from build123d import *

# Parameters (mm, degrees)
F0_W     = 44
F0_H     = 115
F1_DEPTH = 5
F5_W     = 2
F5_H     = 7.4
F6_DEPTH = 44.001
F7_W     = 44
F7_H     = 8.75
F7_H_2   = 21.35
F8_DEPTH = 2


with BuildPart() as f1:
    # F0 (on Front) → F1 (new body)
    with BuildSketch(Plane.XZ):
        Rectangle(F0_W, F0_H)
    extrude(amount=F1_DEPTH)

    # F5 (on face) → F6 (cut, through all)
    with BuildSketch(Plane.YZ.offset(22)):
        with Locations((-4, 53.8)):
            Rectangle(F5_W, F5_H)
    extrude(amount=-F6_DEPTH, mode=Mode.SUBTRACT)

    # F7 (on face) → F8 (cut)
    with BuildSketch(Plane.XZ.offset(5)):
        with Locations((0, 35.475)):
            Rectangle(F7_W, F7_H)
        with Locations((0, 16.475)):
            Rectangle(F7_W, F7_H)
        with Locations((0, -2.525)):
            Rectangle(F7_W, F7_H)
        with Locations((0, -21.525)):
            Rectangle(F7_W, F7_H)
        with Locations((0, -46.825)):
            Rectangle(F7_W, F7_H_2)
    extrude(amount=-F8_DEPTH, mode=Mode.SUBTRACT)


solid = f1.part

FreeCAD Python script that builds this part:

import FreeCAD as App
import Part
import Sketcher
Q = App.Units.Quantity

doc = App.newDocument("Part")
body = doc.addObject("PartDesign::Body", "Body")

sketch1 = doc.addObject("Sketcher::SketchObject", "Sketch")
body.addObject(sketch1)
sketch1.AttachmentSupport = (doc.XZ_Plane, [""])
sketch1.MapMode = "FlatFace"
sketch1.addGeometry([
    Part.LineSegment(App.Vector(-22, 58, 0), App.Vector(-22, -58, 0)),
    Part.LineSegment(App.Vector(-22, -58, 0), App.Vector(22, -58, 0)),
    Part.LineSegment(App.Vector(22, -58, 0), App.Vector(22, 58, 0)),
    Part.LineSegment(App.Vector(22, 58, 0), App.Vector(-22, 58, 0)),
], False)
sketch1.addConstraint([
    Sketcher.Constraint("Coincident", 0, 2, 1, 1),
    Sketcher.Constraint("Coincident", 1, 2, 2, 1),
    Sketcher.Constraint("Coincident", 2, 2, 3, 1),
    Sketcher.Constraint("Coincident", 3, 2, 0, 1),
    Sketcher.Constraint("Vertical", 0),
    Sketcher.Constraint("Horizontal", 1),
    Sketcher.Constraint("Vertical", 2),
    Sketcher.Constraint("Horizontal", 3),
    Sketcher.Constraint("Symmetric", 0, 2, 2, 2, -1, 1),
    Sketcher.Constraint("DistanceX", 1, 1, 1, 2, Q("44 mm")),
    Sketcher.Constraint("DistanceY", 0, 2, 0, 1, Q("115 mm")),
])
pad1 = doc.addObject("PartDesign::Pad", "Pad")
body.addObject(pad1)
pad1.Profile = sketch1
pad1.Length = 5

sketch2 = doc.addObject("Sketcher::SketchObject", "Sketch001")
body.addObject(sketch2)
sketch2.AttachmentSupport = (doc.YZ_Plane, [""])
sketch2.MapMode = "FlatFace"
sketch2.AttachmentOffset = App.Placement(App.Vector(0, 0, 22), App.Rotation())
sketch2.addGeometry([
    Part.LineSegment(App.Vector(-5, 57.5, 0), App.Vector(-5, 50.1, 0)),
    Part.LineSegment(App.Vector(-5, 50.1, 0), App.Vector(-3, 50.1, 0)),
    Part.LineSegment(App.Vector(-3, 50.1, 0), App.Vector(-3, 57.5, 0)),
    Part.LineSegment(App.Vector(-3, 57.5, 0), App.Vector(-5, 57.5, 0)),
], False)
sketch2.addConstraint([
    Sketcher.Constraint("Coincident", 0, 2, 1, 1),
    Sketcher.Constraint("Coincident", 1, 2, 2, 1),
    Sketcher.Constraint("Coincident", 2, 2, 3, 1),
    Sketcher.Constraint("Coincident", 3, 2, 0, 1),
    Sketcher.Constraint("Vertical", 0),
    Sketcher.Constraint("Horizontal", 1),
    Sketcher.Constraint("Vertical", 2),
    Sketcher.Constraint("Horizontal", 3),
    Sketcher.Constraint("DistanceX", 1, 1, 1, 2, Q("2 mm")),
    Sketcher.Constraint("DistanceY", 0, 2, 0, 1, Q("7.4 mm")),
    Sketcher.Constraint("DistanceX", 0, 2, -1, 1, Q("5 mm")),
    Sketcher.Constraint("DistanceY", -1, 1, 0, 2, Q("50.1 mm")),
])
pocket1 = doc.addObject("PartDesign::Pocket", "Pocket")
body.addObject(pocket1)
pocket1.Profile = sketch2
pocket1.Type = "ThroughAll"

sketch3 = doc.addObject("Sketcher::SketchObject", "Sketch002")
body.addObject(sketch3)
sketch3.AttachmentSupport = (doc.XZ_Plane, [""])
sketch3.MapMode = "FlatFace"
sketch3.AttachmentOffset = App.Placement(App.Vector(0, 0, 5), App.Rotation())
sketch3.addGeometry([
    Part.LineSegment(App.Vector(-22, 40, 0), App.Vector(-22, 31, 0)),
    Part.LineSegment(App.Vector(-22, 31, 0), App.Vector(22, 31, 0)),
    Part.LineSegment(App.Vector(22, 31, 0), App.Vector(22, 40, 0)),
    Part.LineSegment(App.Vector(22, 40, 0), App.Vector(-22, 40, 0)),
    Part.LineSegment(App.Vector(-22, 21, 0), App.Vector(-22, 12, 0)),
    Part.LineSegment(App.Vector(-22, 12, 0), App.Vector(22, 12, 0)),
    Part.LineSegment(App.Vector(22, 12, 0), App.Vector(22, 21, 0)),
    Part.LineSegment(App.Vector(22, 21, 0), App.Vector(-22, 21, 0)),
    Part.LineSegment(App.Vector(-22, 2, 0), App.Vector(-22, -7, 0)),
    Part.LineSegment(App.Vector(-22, -7, 0), App.Vector(22, -7, 0)),
    Part.LineSegment(App.Vector(22, -7, 0), App.Vector(22, 2, 0)),
    Part.LineSegment(App.Vector(22, 2, 0), App.Vector(-22, 2, 0)),
    Part.LineSegment(App.Vector(-22, -17, 0), App.Vector(-22, -26, 0)),
    Part.LineSegment(App.Vector(-22, -26, 0), App.Vector(22, -26, 0)),
    Part.LineSegment(App.Vector(22, -26, 0), App.Vector(22, -17, 0)),
    Part.LineSegment(App.Vector(22, -17, 0), App.Vector(-22, -17, 0)),
    Part.LineSegment(App.Vector(-22, -36, 0), App.Vector(-22, -58, 0)),
    Part.LineSegment(App.Vector(-22, -58, 0), App.Vector(22, -58, 0)),
    Part.LineSegment(App.Vector(22, -58, 0), App.Vector(22, -36, 0)),
    Part.LineSegment(App.Vector(22, -36, 0), App.Vector(-22, -36, 0)),
], False)
sketch3.addConstraint([
    Sketcher.Constraint("Coincident", 0, 2, 1, 1),
    Sketcher.Constraint("Coincident", 1, 2, 2, 1),
    Sketcher.Constraint("Coincident", 2, 2, 3, 1),
    Sketcher.Constraint("Coincident", 3, 2, 0, 1),
    Sketcher.Constraint("Coincident", 4, 2, 5, 1),
    Sketcher.Constraint("Coincident", 5, 2, 6, 1),
    Sketcher.Constraint("Coincident", 6, 2, 7, 1),
    Sketcher.Constraint("Coincident", 7, 2, 4, 1),
    Sketcher.Constraint("Coincident", 8, 2, 9, 1),
    Sketcher.Constraint("Coincident", 9, 2, 10, 1),
    Sketcher.Constraint("Coincident", 10, 2, 11, 1),
    Sketcher.Constraint("Coincident", 11, 2, 8, 1),
    Sketcher.Constraint("Coincident", 12, 2, 13, 1),
    Sketcher.Constraint("Coincident", 13, 2, 14, 1),
    Sketcher.Constraint("Coincident", 14, 2, 15, 1),
    Sketcher.Constraint("Coincident", 15, 2, 12, 1),
    Sketcher.Constraint("Coincident", 16, 2, 17, 1),
    Sketcher.Constraint("Coincident", 17, 2, 18, 1),
    Sketcher.Constraint("Coincident", 18, 2, 19, 1),
    Sketcher.Constraint("Coincident", 19, 2, 16, 1),
    Sketcher.Constraint("Vertical", 0),
    Sketcher.Constraint("Horizontal", 1),
    Sketcher.Constraint("Vertical", 2),
    Sketcher.Constraint("Horizontal", 3),
    Sketcher.Constraint("Vertical", 4),
    Sketcher.Constraint("Horizontal", 5),
    Sketcher.Constraint("Vertical", 6),
    Sketcher.Constraint("Horizontal", 7),
    Sketcher.Constraint("Vertical", 8),
    Sketcher.Constraint("Horizontal", 9),
    Sketcher.Constraint("Vertical", 10),
    Sketcher.Constraint("Horizontal", 11),
    Sketcher.Constraint("Vertical", 12),
    Sketcher.Constraint("Horizontal", 13),
    Sketcher.Constraint("Vertical", 14),
    Sketcher.Constraint("Horizontal", 15),
    Sketcher.Constraint("Vertical", 16),
    Sketcher.Constraint("Horizontal", 17),
    Sketcher.Constraint("Vertical", 18),
    Sketcher.Constraint("Horizontal", 19),
    Sketcher.Constraint("Vertical", 3, 2, 4, 2),
    Sketcher.Constraint("Vertical", 2, 2, 5, 2),
    Sketcher.Constraint("Vertical", 7, 2, 8, 2),
    Sketcher.Constraint("Vertical", 6, 2, 9, 2),
    Sketcher.Constraint("Vertical", 11, 2, 12, 2),
    Sketcher.Constraint("Vertical", 10, 2, 13, 2),
    Sketcher.Constraint("Vertical", 15, 2, 16, 2),
    Sketcher.Constraint("Vertical", 14, 2, 17, 2),
    Sketcher.Constraint("Equal", 2, 4),
    Sketcher.Constraint("Equal", 6, 8),
    Sketcher.Constraint("Equal", 10, 12),
    Sketcher.Constraint("DistanceX", 1, 1, 1, 2, Q("44 mm")),
    Sketcher.Constraint("DistanceX", 0, 2, -1, 1, Q("22 mm")),
    Sketcher.Constraint("DistanceY", 4, 2, 0, 2, Q("19 mm")),
    Sketcher.Constraint("DistanceY", 8, 2, 4, 2, Q("19 mm")),
    Sketcher.Constraint("DistanceY", 12, 2, 8, 2, Q("19 mm")),
    Sketcher.Constraint("DistanceY", 18, 2, 14, 2, Q("19 mm")),
    Sketcher.Constraint("DistanceY", 0, 2, 0, 1, Q("8.75 mm")),
    Sketcher.Constraint("DistanceY", 16, 2, 16, 1, Q("21.35 mm")),
    Sketcher.Constraint("DistanceY", -1, 1, 0, 2, Q("31.1 mm")),
])
pocket2 = doc.addObject("PartDesign::Pocket", "Pocket001")
body.addObject(pocket2)
pocket2.Profile = sketch3
pocket2.Length = 2

doc.recompute()
